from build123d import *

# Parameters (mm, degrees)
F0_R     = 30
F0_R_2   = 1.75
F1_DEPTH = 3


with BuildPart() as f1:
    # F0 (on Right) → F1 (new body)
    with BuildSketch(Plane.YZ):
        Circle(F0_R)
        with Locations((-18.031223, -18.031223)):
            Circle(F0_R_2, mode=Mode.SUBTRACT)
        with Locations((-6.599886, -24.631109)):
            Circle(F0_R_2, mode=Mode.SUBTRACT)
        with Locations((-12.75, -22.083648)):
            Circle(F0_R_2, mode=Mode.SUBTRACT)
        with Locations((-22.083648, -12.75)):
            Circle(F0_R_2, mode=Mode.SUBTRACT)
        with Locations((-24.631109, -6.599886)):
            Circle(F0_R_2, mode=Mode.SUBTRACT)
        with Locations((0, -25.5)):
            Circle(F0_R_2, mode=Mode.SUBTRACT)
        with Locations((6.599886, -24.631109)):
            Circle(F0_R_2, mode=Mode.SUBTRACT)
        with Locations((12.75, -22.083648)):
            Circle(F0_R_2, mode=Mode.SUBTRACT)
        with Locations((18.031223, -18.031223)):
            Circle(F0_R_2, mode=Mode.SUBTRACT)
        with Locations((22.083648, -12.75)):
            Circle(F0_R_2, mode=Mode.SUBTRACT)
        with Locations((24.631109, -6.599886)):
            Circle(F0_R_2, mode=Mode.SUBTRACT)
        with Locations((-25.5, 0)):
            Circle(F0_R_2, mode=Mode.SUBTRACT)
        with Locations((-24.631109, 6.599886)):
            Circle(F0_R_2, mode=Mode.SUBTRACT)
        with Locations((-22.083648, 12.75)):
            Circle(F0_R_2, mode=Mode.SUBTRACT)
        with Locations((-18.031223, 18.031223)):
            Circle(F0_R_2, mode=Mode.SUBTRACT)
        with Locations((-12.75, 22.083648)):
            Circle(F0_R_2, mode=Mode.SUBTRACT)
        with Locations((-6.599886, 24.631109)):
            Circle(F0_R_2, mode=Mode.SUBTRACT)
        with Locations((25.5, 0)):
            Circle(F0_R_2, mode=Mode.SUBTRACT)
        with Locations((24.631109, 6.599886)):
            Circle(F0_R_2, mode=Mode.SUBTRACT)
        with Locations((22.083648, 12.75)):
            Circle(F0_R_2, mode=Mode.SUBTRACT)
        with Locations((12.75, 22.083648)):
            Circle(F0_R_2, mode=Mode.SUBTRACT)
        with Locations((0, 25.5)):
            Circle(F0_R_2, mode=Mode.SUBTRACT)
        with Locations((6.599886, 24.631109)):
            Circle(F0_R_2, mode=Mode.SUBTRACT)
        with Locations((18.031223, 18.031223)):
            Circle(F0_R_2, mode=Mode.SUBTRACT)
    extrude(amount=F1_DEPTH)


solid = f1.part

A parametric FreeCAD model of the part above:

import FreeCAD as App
import Part
import Sketcher

doc = App.newDocument("Part")
body = doc.addObject("PartDesign::Body", "Body")

# Sketch on YZ plane
sketch1 = body.newObject("Sketcher::SketchObject", "Sketch")
sketch1.AttachmentSupport = (doc.getObject("YZ_Plane"), [""])
sketch1.MapMode = "FlatFace"
sketch1.addGeometry([
    Part.Circle(App.Vector(0, 0, 0), App.Vector(0, 0, 1), 30),  # 0
    Part.Circle(App.Vector(-18, -18, 0), App.Vector(0, 0, 1), 1.8),  # 1
    Part.Circle(App.Vector(-12.8, -22.1, 0), App.Vector(0, 0, 1), 1.8),  # 2
    Part.Circle(App.Vector(-6.6, -24.6, 0), App.Vector(0, 0, 1), 1.8),  # 3
    Part.Circle(App.Vector(-22.1, -12.8, 0), App.Vector(0, 0, 1), 1.8),  # 4
    Part.Circle(App.Vector(-24.6, -6.6, 0), App.Vector(0, 0, 1), 1.8),  # 5
    Part.Circle(App.Vector(0, -25.5, 0), App.Vector(0, 0, 1), 1.8),  # 6
    Part.Circle(App.Vector(6.6, -24.6, 0), App.Vector(0, 0, 1), 1.8),  # 7
    Part.Circle(App.Vector(12.8, -22.1, 0), App.Vector(0, 0, 1), 1.8),  # 8
    Part.Circle(App.Vector(18, -18, 0), App.Vector(0, 0, 1), 1.8),  # 9
    Part.Circle(App.Vector(22.1, -12.8, 0), App.Vector(0, 0, 1), 1.8),  # 10
    Part.Circle(App.Vector(24.6, -6.6, 0), App.Vector(0, 0, 1), 1.8),  # 11
    Part.Circle(App.Vector(-25.5, 0, 0), App.Vector(0, 0, 1), 1.8),  # 12
    Part.Circle(App.Vector(-24.6, 6.6, 0), App.Vector(0, 0, 1), 1.8),  # 13
    Part.Circle(App.Vector(-22.1, 12.8, 0), App.Vector(0, 0, 1), 1.8),  # 14
    Part.Circle(App.Vector(-18, 18, 0), App.Vector(0, 0, 1), 1.8),  # 15
    Part.Circle(App.Vector(-12.8, 22.1, 0), App.Vector(0, 0, 1), 1.8),  # 16
    Part.Circle(App.Vector(-6.6, 24.6, 0), App.Vector(0, 0, 1), 1.8),  # 17
    Part.Circle(App.Vector(25.5, 0, 0), App.Vector(0, 0, 1), 1.8),  # 18
    Part.Circle(App.Vector(24.6, 6.6, 0), App.Vector(0, 0, 1), 1.8),  # 19
    Part.Circle(App.Vector(22.1, 12.8, 0), App.Vector(0, 0, 1), 1.8),  # 20
    Part.Circle(App.Vector(0, 25.5, 0), App.Vector(0, 0, 1), 1.8),  # 21
    Part.Circle(App.Vector(6.6, 24.6, 0), App.Vector(0, 0, 1), 1.8),  # 22
    Part.Circle(App.Vector(12.8, 22.1, 0), App.Vector(0, 0, 1), 1.8),  # 23
    Part.Circle(App.Vector(18, 18, 0), App.Vector(0, 0, 1), 1.8),  # 24
], False)
sketch1.addConstraint([
    Sketcher.Constraint("Coincident", 0, 3, -1, 1),
    Sketcher.Constraint("Equal", 1, 2),
    Sketcher.Constraint("Equal", 2, 3),
    Sketcher.Constraint("Equal", 3, 4),
    Sketcher.Constraint("Equal", 4, 5),
    Sketcher.Constraint("Equal", 5, 6),
    Sketcher.Constraint("Equal", 6, 7),
    Sketcher.Constraint("Equal", 7, 8),
    Sketcher.Constraint("Equal", 8, 9),
    Sketcher.Constraint("Equal", 9, 10),
    Sketcher.Constraint("Equal", 10, 11),
    Sketcher.Constraint("Equal", 11, 12),
    Sketcher.Constraint("Equal", 12, 13),
    Sketcher.Constraint("Equal", 13, 14),
    Sketcher.Constraint("Equal", 14, 15),
    Sketcher.Constraint("Equal", 15, 16),
    Sketcher.Constraint("Equal", 16, 17),
    Sketcher.Constraint("Equal", 17, 18),
    Sketcher.Constraint("Equal", 18, 19),
    Sketcher.Constraint("Equal", 19, 20),
    Sketcher.Constraint("Equal", 20, 21),
    Sketcher.Constraint("Equal", 21, 22),
    Sketcher.Constraint("Equal", 22, 23),
    Sketcher.Constraint("Equal", 23, 24),
    Sketcher.Constraint("Symmetric", 11, 3, 13, 3, -1, 1),
    Sketcher.Constraint("Symmetric", 10, 3, 14, 3, -1, 1),
    Sketcher.Constraint("Symmetric", 9, 3, 15, 3, -1, 1),
    Sketcher.Constraint("Symmetric", 8, 3, 16, 3, -1, 1),
    Sketcher.Constraint("Symmetric", 7, 3, 17, 3, -1, 1),
    Sketcher.Constraint("Symmetric", 12, 3, 18, 3, -1, 1),
    Sketcher.Constraint("Symmetric", 5, 3, 19, 3, -1, 1),
    Sketcher.Constraint("Symmetric", 4, 3, 20, 3, -1, 1),
    Sketcher.Constraint("Symmetric", 6, 3, 21, 3, -1, 1),
    Sketcher.Constraint("Symmetric", 3, 3, 22, 3, -1, 1),
    Sketcher.Constraint("Symmetric", 2, 3, 23, 3, -1, 1),
    Sketcher.Constraint("Symmetric", 1, 3, 24, 3, -1, 1),
    Sketcher.Constraint("Symmetric", 3, 3, 7, 3, -2),
    Sketcher.Constraint("Symmetric", 2, 3, 8, 3, -2),
    Sketcher.Constraint("Symmetric", 1, 3, 9, 3, -2),
    Sketcher.Constraint("Symmetric", 4, 3, 10, 3, -2),
    Sketcher.Constraint("Symmetric", 5, 3, 11, 3, -2),
    Sketcher.Constraint("PointOnObject", 6, 3, -2),
    Sketcher.Constraint("PointOnObject", 12, 3, -1),
    Sketcher.Constraint("Diameter", 0, 60.0),
    Sketcher.Constraint("Diameter", 1, 3.5),
    Sketcher.Constraint("DistanceY", 6, 3, -1, 1, 25.5),
    Sketcher.Constraint("DistanceX", 12, 3, -1, 1, 25.5),
    Sketcher.Constraint("DistanceX", 2, 3, 8, 3, 25.5),
    Sketcher.Constraint("DistanceY", 4, 3, 14, 3, 25.5),
    Sketcher.Constraint("DistanceY", 2, 3, -1, 1, 22.083648),
    Sketcher.Constraint("DistanceY", 3, 3, -1, 1, 24.631109),
    Sketcher.Constraint("DistanceX", 4, 3, -1, 1, 22.083648),
    Sketcher.Constraint("DistanceX", 5, 3, -1, 1, 24.631109),
    Sketcher.Constraint("DistanceX", 1, 3, 7, 3, 24.631109),
    Sketcher.Constraint("DistanceY", 1, 3, 13, 3, 24.631109),
    Sketcher.Constraint("DistanceX", 1, 3, -1, 1, 18.031223),
    Sketcher.Constraint("DistanceY", 1, 3, -1, 1, 18.031223),
])
pad1 = body.newObject("PartDesign::Pad", "Pad")
pad1.Profile = sketch1
pad1.Length = 3

doc.recompute()
